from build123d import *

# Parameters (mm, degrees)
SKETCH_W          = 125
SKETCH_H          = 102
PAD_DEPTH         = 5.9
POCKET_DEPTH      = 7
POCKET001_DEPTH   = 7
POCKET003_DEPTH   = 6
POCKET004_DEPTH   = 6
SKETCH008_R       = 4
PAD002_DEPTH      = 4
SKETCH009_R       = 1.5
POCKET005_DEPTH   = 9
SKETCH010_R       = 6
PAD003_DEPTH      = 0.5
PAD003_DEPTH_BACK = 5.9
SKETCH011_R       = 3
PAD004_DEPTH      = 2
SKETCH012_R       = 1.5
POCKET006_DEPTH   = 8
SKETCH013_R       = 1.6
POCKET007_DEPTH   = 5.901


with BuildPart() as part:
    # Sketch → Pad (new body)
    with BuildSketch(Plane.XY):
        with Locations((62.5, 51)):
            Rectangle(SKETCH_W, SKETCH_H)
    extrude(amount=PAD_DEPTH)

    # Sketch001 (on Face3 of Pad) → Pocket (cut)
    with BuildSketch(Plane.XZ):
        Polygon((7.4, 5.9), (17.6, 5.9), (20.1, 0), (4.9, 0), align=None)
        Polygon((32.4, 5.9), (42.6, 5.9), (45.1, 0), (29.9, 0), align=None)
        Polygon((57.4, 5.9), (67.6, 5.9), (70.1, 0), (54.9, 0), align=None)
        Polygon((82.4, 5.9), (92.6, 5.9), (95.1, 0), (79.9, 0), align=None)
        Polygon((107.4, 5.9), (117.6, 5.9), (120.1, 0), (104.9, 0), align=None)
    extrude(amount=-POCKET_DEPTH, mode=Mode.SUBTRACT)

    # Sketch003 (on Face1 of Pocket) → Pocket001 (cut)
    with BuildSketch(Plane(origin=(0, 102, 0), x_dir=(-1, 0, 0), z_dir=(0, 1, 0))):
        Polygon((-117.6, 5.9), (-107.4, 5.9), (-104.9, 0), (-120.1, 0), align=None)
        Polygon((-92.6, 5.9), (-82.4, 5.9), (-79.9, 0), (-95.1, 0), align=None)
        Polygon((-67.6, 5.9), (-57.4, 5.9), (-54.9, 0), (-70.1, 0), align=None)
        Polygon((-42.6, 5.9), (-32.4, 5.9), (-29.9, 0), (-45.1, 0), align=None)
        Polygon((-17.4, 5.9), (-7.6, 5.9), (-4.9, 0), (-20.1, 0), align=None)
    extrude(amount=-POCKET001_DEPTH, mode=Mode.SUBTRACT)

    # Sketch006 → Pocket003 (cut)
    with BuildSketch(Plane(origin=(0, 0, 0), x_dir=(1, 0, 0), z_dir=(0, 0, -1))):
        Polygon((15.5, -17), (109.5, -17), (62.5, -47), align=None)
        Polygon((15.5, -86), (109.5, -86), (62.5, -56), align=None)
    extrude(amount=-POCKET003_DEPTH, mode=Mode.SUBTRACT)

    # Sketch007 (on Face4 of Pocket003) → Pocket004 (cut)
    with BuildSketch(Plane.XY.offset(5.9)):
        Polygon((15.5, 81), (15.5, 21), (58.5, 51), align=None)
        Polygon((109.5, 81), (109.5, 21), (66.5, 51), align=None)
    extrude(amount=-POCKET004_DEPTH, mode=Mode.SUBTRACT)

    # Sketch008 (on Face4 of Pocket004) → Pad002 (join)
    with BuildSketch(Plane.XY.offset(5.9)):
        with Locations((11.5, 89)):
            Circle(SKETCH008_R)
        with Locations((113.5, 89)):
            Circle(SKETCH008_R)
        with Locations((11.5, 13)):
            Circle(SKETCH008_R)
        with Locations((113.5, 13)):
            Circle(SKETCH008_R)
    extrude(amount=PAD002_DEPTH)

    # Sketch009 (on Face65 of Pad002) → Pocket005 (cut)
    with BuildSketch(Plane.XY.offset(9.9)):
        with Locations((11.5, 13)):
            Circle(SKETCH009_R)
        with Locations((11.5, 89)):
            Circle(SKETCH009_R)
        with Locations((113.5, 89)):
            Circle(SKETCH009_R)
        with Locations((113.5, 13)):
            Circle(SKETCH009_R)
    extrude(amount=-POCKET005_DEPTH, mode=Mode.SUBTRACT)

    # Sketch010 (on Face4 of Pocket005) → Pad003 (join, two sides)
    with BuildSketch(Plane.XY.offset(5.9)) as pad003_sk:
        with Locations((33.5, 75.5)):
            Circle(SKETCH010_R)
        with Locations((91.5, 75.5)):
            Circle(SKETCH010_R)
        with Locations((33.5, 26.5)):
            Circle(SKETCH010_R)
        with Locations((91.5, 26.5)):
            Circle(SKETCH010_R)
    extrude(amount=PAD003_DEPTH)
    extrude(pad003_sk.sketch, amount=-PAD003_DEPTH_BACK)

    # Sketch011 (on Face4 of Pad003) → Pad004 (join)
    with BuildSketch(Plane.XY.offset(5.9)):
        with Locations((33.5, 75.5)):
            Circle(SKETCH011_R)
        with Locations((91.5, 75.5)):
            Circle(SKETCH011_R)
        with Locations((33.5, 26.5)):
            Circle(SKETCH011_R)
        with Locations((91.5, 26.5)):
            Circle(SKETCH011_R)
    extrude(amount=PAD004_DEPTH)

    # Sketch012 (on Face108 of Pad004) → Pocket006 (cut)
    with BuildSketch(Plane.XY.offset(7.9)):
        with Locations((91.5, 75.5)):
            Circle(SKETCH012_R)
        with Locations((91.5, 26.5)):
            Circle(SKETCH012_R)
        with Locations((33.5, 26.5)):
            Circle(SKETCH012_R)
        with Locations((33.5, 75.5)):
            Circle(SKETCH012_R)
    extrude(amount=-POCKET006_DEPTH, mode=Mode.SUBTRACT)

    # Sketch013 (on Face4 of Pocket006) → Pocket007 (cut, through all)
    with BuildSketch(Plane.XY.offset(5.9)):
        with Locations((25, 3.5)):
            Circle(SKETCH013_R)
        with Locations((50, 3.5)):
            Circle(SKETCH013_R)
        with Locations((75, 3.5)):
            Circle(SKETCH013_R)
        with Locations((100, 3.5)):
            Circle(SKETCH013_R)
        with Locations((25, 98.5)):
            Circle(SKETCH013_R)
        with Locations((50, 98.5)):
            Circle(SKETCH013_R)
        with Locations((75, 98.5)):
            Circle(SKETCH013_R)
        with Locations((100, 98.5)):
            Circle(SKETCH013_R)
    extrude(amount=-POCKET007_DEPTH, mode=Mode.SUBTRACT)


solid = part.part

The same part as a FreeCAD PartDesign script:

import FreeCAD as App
import Part
import Sketcher

V = App.Vector
Q = App.Units.Quantity


def add_polygon(sketch, points):
    """Adds a closed chain of lines whose ends are joined by coincident constraints."""
    first, n = sketch.GeometryCount, len(points)
    for a, b in zip(points, points[1:] + points[:1]):
        sketch.addGeometry(Part.LineSegment(App.Vector(*a, 0), App.Vector(*b, 0)), False)
    for i in range(n):
        sketch.addConstraint(Sketcher.Constraint("Coincident", first + i, 2, first + (i + 1) % n, 1))

doc = App.newDocument("Part")
body = doc.addObject("PartDesign::Body", "Body")

sketch1 = body.newObject("Sketcher::SketchObject", "Sketch")
sketch1.AttachmentSupport = (doc.getObject("XY_Plane"), [""])
sketch1.MapMode = "FlatFace"
add_polygon(sketch1, [(0, 102), (0, 0), (125, 0), (125, 102)])
sketch1.addConstraint(Sketcher.Constraint("Vertical", 0))
sketch1.addConstraint(Sketcher.Constraint("Horizontal", 1))
sketch1.addConstraint(Sketcher.Constraint("Vertical", 2))
sketch1.addConstraint(Sketcher.Constraint("Horizontal", 3))
sketch1.addConstraint(Sketcher.Constraint("Coincident", 0, 2, -1, 1))
sketch1.addConstraint(Sketcher.Constraint("DistanceX", 1, 1, 1, 2, Q("125 mm")))
sketch1.addConstraint(Sketcher.Constraint("DistanceY", 0, 2, 0, 1, Q("102 mm")))
pad1 = body.newObject("PartDesign::Pad", "Pad")
pad1.Profile = sketch1
pad1.Length = 5.9

sketch2 = body.newObject("Sketcher::SketchObject", "Sketch001")
sketch2.AttachmentSupport = (doc.getObject("XZ_Plane"), [""])
sketch2.MapMode = "FlatFace"
add_polygon(sketch2, [(17.6, 5.9), (7.4, 5.9), (4.9, 0), (20.1, 0)])
add_polygon(sketch2, [(42.6, 5.9), (32.4, 5.9), (29.9, 0), (45.1, 0)])
add_polygon(sketch2, [(67.6, 5.9), (57.4, 5.9), (54.9, 0), (70.1, 0)])
add_polygon(sketch2, [(92.6, 5.9), (82.4, 5.9), (79.9, 0), (95.1, 0)])
add_polygon(sketch2, [(117.6, 5.9), (107.4, 5.9), (104.9, 0), (120.1, 0)])
sketch2.addConstraint(Sketcher.Constraint("Horizontal", 0))
sketch2.addConstraint(Sketcher.Constraint("Horizontal", 2))
sketch2.addConstraint(Sketcher.Constraint("Horizontal", 4))
sketch2.addConstraint(Sketcher.Constraint("Horizontal", 6))
sketch2.addConstraint(Sketcher.Constraint("Horizontal", 8))
sketch2.addConstraint(Sketcher.Constraint("Horizontal", 10))
sketch2.addConstraint(Sketcher.Constraint("Horizontal", 12))
sketch2.addConstraint(Sketcher.Constraint("Horizontal", 14))
sketch2.addConstraint(Sketcher.Constraint("Horizontal", 16))
sketch2.addConstraint(Sketcher.Constraint("Horizontal", 18))
sketch2.addConstraint(Sketcher.Constraint("PointOnObject", 1, 2, -1))
sketch2.addConstraint(Sketcher.Constraint("PointOnObject", 5, 2, -1))
sketch2.addConstraint(Sketcher.Constraint("PointOnObject", 9, 2, -1))
sketch2.addConstraint(Sketcher.Constraint("PointOnObject", 13, 2, -1))
sketch2.addConstraint(Sketcher.Constraint("PointOnObject", 17, 2, -1))
sketch2.addConstraint(Sketcher.Constraint("Parallel", 1, 5))
sketch2.addConstraint(Sketcher.Constraint("Parallel", 3, 7))
sketch2.addConstraint(Sketcher.Constraint("Parallel", 5, 9))
sketch2.addConstraint(Sketcher.Constraint("Parallel", 7, 11))
sketch2.addConstraint(Sketcher.Constraint("Parallel", 9, 13))
sketch2.addConstraint(Sketcher.Constraint("Parallel", 11, 15))
sketch2.addConstraint(Sketcher.Constraint("Parallel", 13, 17))
sketch2.addConstraint(Sketcher.Constraint("Parallel", 15, 19))
sketch2.addConstraint(Sketcher.Constraint("Horizontal", 3, 2, 4, 2))
sketch2.addConstraint(Sketcher.Constraint("Horizontal", 7, 2, 8, 2))
sketch2.addConstraint(Sketcher.Constraint("Horizontal", 11, 2, 12, 2))
sketch2.addConstraint(Sketcher.Constraint("Horizontal", 15, 2, 16, 2))
sketch2.addConstraint(Sketcher.Constraint("Equal", 0, 4))
sketch2.addConstraint(Sketcher.Constraint("Equal", 4, 8))
sketch2.addConstraint(Sketcher.Constraint("Equal", 8, 12))
sketch2.addConstraint(Sketcher.Constraint("Equal", 12, 16))
sketch2.addConstraint(Sketcher.Constraint("Equal", 1, 3))
sketch2.addConstraint(Sketcher.Constraint("DistanceX", 0, 2, 0, 1, Q("10.2 mm")))
sketch2.addConstraint(Sketcher.Constraint("DistanceX", 2, 1, 2, 2, Q("15.2 mm")))
sketch2.addConstraint(Sketcher.Constraint("DistanceX", 0, 2, 4, 2, Q("25 mm")))
sketch2.addConstraint(Sketcher.Constraint("DistanceX", 4, 2, 8, 2, Q("25 mm")))
sketch2.addConstraint(Sketcher.Constraint("DistanceX", 8, 2, 12, 2, Q("25 mm")))
sketch2.addConstraint(Sketcher.Constraint("DistanceX", 12, 2, 16, 2, Q("25 mm")))
sketch2.addConstraint(Sketcher.Constraint("DistanceX", -1, 1, 0, 2, Q("7.4 mm")))
sketch2.addConstraint(Sketcher.Constraint("DistanceY", -1, 1, 0, 2, Q("5.9 mm")))
pocket1 = body.newObject("PartDesign::Pocket", "Pocket")
pocket1.Profile = sketch2
pocket1.Length = 7

sketch3 = body.newObject("Sketcher::SketchObject", "Sketch002")
sketch3.AttachmentSupport = (doc.getObject("XZ_Plane"), [""])
sketch3.MapMode = "FlatFace"
sketch3.AttachmentOffset = App.Placement(V(0, 0, -102), App.Rotation())
add_polygon(sketch3, [(107.4, 5.9), (117.6, 5.9), (120.1, 0), (104.9, 0)])
add_polygon(sketch3, [(82.4, 5.9), (92.6, 5.9), (95.1, 0), (79.9, 0)])
add_polygon(sketch3, [(57.4, 5.9), (67.6, 5.9), (70.1, 0), (54.9, 0)])
add_polygon(sketch3, [(32.4, 5.9), (42.6, 5.9), (45.1, 0), (29.9, 0)])
add_polygon(sketch3, [(7.6, 5.9), (17.4, 5.9), (20.1, 0), (4.9, 0)])
sketch3.addConstraint(Sketcher.Constraint("Horizontal", 0))
sketch3.addConstraint(Sketcher.Constraint("Horizontal", 2))
sketch3.addConstraint(Sketcher.Constraint("Horizontal", 4))
sketch3.addConstraint(Sketcher.Constraint("Horizontal", 6))
sketch3.addConstraint(Sketcher.Constraint("Horizontal", 8))
sketch3.addConstraint(Sketcher.Constraint("Horizontal", 10))
sketch3.addConstraint(Sketcher.Constraint("Horizontal", 12))
sketch3.addConstraint(Sketcher.Constraint("Horizontal", 14))
sketch3.addConstraint(Sketcher.Constraint("Horizontal", 16))
sketch3.addConstraint(Sketcher.Constraint("Horizontal", 18))
sketch3.addConstraint(Sketcher.Constraint("PointOnObject", 1, 2, -1))
sketch3.addConstraint(Sketcher.Constraint("PointOnObject", 5, 2, -1))
sketch3.addConstraint(Sketcher.Constraint("PointOnObject", 9, 2, -1))
sketch3.addConstraint(Sketcher.Constraint("PointOnObject", 13, 2, -1))
sketch3.addConstraint(Sketcher.Constraint("PointOnObject", 17, 2, -1))
sketch3.addConstraint(Sketcher.Constraint("Parallel", 1, 5))
sketch3.addConstraint(Sketcher.Constraint("Parallel", 3, 7))
sketch3.addConstraint(Sketcher.Constraint("Parallel", 5, 9))
sketch3.addConstraint(Sketcher.Constraint("Parallel", 7, 11))
sketch3.addConstraint(Sketcher.Constraint("Parallel", 9, 13))
sketch3.addConstraint(Sketcher.Constraint("Parallel", 11, 15))
sketch3.addConstraint(Sketcher.Constraint("Horizontal", 3, 2, 4, 2))
sketch3.addConstraint(Sketcher.Constraint("Horizontal", 7, 2, 8, 2))
sketch3.addConstraint(Sketcher.Constraint("Horizontal", 11, 2, 12, 2))
sketch3.addConstraint(Sketcher.Constraint("Horizontal", 15, 2, 16, 2))
sketch3.addConstraint(Sketcher.Constraint("Equal", 0, 4))
sketch3.addConstraint(Sketcher.Constraint("Equal", 4, 8))
sketch3.addConstraint(Sketcher.Constraint("Equal", 8, 12))
sketch3.addConstraint(Sketcher.Constraint("Equal", 14, 18))
sketch3.addConstraint(Sketcher.Constraint("Equal", 1, 3))
sketch3.addConstraint(Sketcher.Constraint("Equal", 17, 19))
sketch3.addConstraint(Sketcher.Constraint("DistanceX", 0, 1, 0, 2, Q("10.2 mm")))
sketch3.addConstraint(Sketcher.Constraint("DistanceX", 2, 2, 2, 1, Q("15.2 mm")))
sketch3.addConstraint(Sketcher.Constraint("DistanceX", 16, 1, 16, 2, Q("9.8 mm")))
sketch3.addConstraint(Sketcher.Constraint("DistanceX", 4, 2, 0, 2, Q("25 mm")))
sketch3.addConstraint(Sketcher.Constraint("DistanceX", 8, 2, 4, 2, Q("25 mm")))
sketch3.addConstraint(Sketcher.Constraint("DistanceX", 12, 2, 8, 2, Q("25 mm")))
sketch3.addConstraint(Sketcher.Constraint("DistanceX", 16, 2, 15, 2, Q("15 mm")))
sketch3.addConstraint(Sketcher.Constraint("DistanceX", -1, 1, 0, 2, Q("117.6 mm")))
sketch3.addConstraint(Sketcher.Constraint("DistanceY", -1, 1, 0, 2, Q("5.9 mm")))
pocket2 = body.newObject("PartDesign::Pocket", "Pocket001")
pocket2.Profile = sketch3
pocket2.Length = 7
pocket2.Reversed = True

sketch4 = body.newObject("Sketcher::SketchObject", "Sketch003")
sketch4.AttachmentSupport = (doc.getObject("XY_Plane"), [""])
sketch4.MapMode = "FlatFace"
add_polygon(sketch4, [(109.5, 17), (15.5, 17), (62.5, 47)])
add_polygon(sketch4, [(15.5, 86), (109.5, 86), (62.5, 56)])
sketch4.addConstraint(Sketcher.Constraint("Horizontal", 0))
sketch4.addConstraint(Sketcher.Constraint("Horizontal", 3))
sketch4.addConstraint(Sketcher.Constraint("Parallel", 1, 4))
sketch4.addConstraint(Sketcher.Constraint("Parallel", 2, 5))
sketch4.addConstraint(Sketcher.Constraint("Vertical", 2, 2, 3, 2))
sketch4.addConstraint(Sketcher.Constraint("Vertical", 1, 2, 4, 2))
sketch4.addConstraint(Sketcher.Constraint("Vertical", 0, 2, 5, 2))
sketch4.addConstraint(Sketcher.Constraint("DistanceX", 0, 2, 0, 1, Q("94 mm")))
sketch4.addConstraint(Sketcher.Constraint("DistanceY", -1, 1, 0, 2, Q("17 mm")))
sketch4.addConstraint(Sketcher.Constraint("DistanceY", -1, 1, 1, 2, Q("47 mm")))
sketch4.addConstraint(Sketcher.Constraint("DistanceY", -1, 1, 3, 2, Q("86 mm")))
sketch4.addConstraint(Sketcher.Constraint("DistanceX", -1, 1, 0, 2, Q("15.5 mm")))
pocket3 = body.newObject("PartDesign::Pocket", "Pocket002")
pocket3.Profile = sketch4
pocket3.Length = 6
pocket3.Reversed = True

sketch5 = body.newObject("Sketcher::SketchObject", "Sketch004")
sketch5.AttachmentSupport = (doc.getObject("XY_Plane"), [""])
sketch5.MapMode = "FlatFace"
sketch5.AttachmentOffset = App.Placement(V(0, 0, 5.9), App.Rotation())
add_polygon(sketch5, [(15.5, 81), (15.5, 21), (58.5, 51)])
add_polygon(sketch5, [(109.5, 21), (109.5, 81), (66.5, 51)])
sketch5.addConstraint(Sketcher.Constraint("Vertical", 0))
sketch5.addConstraint(Sketcher.Constraint("Vertical", 3))
sketch5.addConstraint(Sketcher.Constraint("Parallel", 1, 4))
sketch5.addConstraint(Sketcher.Constraint("Parallel", 2, 5))
sketch5.addConstraint(Sketcher.Constraint("Horizontal", 2, 2, 3, 2))
sketch5.addConstraint(Sketcher.Constraint("Horizontal", 1, 2, 4, 2))
sketch5.addConstraint(Sketcher.Constraint("Horizontal", 0, 2, 5, 2))
sketch5.addConstraint(Sketcher.Constraint("DistanceY", 0, 2, 0, 1, Q("60 mm")))
sketch5.addConstraint(Sketcher.Constraint("DistanceY", -1, 1, 0, 2, Q("21 mm")))
sketch5.addConstraint(Sketcher.Constraint("DistanceX", 0, 2, 1, 2, Q("43 mm")))
sketch5.addConstraint(Sketcher.Constraint("DistanceX", 1, 2, 3, 2, Q("51 mm")))
sketch5.addConstraint(Sketcher.Constraint("DistanceX", -1, 1, 0, 2, Q("15.5 mm")))
pocket4 = body.newObject("PartDesign::Pocket", "Pocket003")
pocket4.Profile = sketch5
pocket4.Length = 6

sketch6 = body.newObject("Sketcher::SketchObject", "Sketch005")
sketch6.AttachmentSupport = (doc.getObject("XY_Plane"), [""])
sketch6.MapMode = "FlatFace"
sketch6.AttachmentOffset = App.Placement(V(0, 0, 5.9), App.Rotation())
sketch6.addGeometry(Part.Circle(V(11.5, 89, 0), V(0, 0, 1), 4), False)
sketch6.addGeometry(Part.Circle(V(113.5, 89, 0), V(0, 0, 1), 4), False)
sketch6.addGeometry(Part.Circle(V(11.5, 13, 0), V(0, 0, 1), 4), False)
sketch6.addGeometry(Part.Circle(V(113.5, 13, 0), V(0, 0, 1), 4), False)
sketch6.addConstraint(Sketcher.Constraint("Equal", 0, 1))
sketch6.addConstraint(Sketcher.Constraint("Equal", 1, 2))
sketch6.addConstraint(Sketcher.Constraint("Equal", 2, 3))
sketch6.addConstraint(Sketcher.Constraint("Horizontal", 0, 3, 1, 3))
sketch6.addConstraint(Sketcher.Constraint("Horizontal", 2, 3, 3, 3))
sketch6.addConstraint(Sketcher.Constraint("Vertical", 0, 3, 2, 3))
sketch6.addConstraint(Sketcher.Constraint("Vertical", 1, 3, 3, 3))
sketch6.addConstraint(Sketcher.Constraint("Diameter", 0, Q("8 mm")))
sketch6.addConstraint(Sketcher.Constraint("DistanceY", -1, 1, 0, 3, Q("89 mm")))
sketch6.addConstraint(Sketcher.Constraint("DistanceY", -1, 1, 2, 3, Q("13 mm")))
sketch6.addConstraint(Sketcher.Constraint("DistanceX", 0, 3, 1, 3, Q("102 mm")))
sketch6.addConstraint(Sketcher.Constraint("DistanceX", -1, 1, 0, 3, Q("11.5 mm")))
pad2 = body.newObject("PartDesign::Pad", "Pad001")
pad2.Profile = sketch6
pad2.Length = 4

sketch7 = body.newObject("Sketcher::SketchObject", "Sketch006")
sketch7.AttachmentSupport = (doc.getObject("XY_Plane"), [""])
sketch7.MapMode = "FlatFace"
sketch7.AttachmentOffset = App.Placement(V(0, 0, 9.9), App.Rotation())
sketch7.addGeometry(Part.Circle(V(11.5, 13, 0), V(0, 0, 1), 1.5), False)
sketch7.addGeometry(Part.Circle(V(11.5, 89, 0), V(0, 0, 1), 1.5), False)
sketch7.addGeometry(Part.Circle(V(113.5, 89, 0), V(0, 0, 1), 1.5), False)
sketch7.addGeometry(Part.Circle(V(113.5, 13, 0), V(0, 0, 1), 1.5), False)
sketch7.addConstraint(Sketcher.Constraint("Equal", 0, 1))
sketch7.addConstraint(Sketcher.Constraint("Equal", 1, 2))
sketch7.addConstraint(Sketcher.Constraint("Equal", 2, 3))
sketch7.addConstraint(Sketcher.Constraint("Horizontal", 1, 3, 2, 3))
sketch7.addConstraint(Sketcher.Constraint("Horizontal", 0, 3, 3, 3))
sketch7.addConstraint(Sketcher.Constraint("Vertical", 0, 3, 1, 3))
sketch7.addConstraint(Sketcher.Constraint("Vertical", 2, 3, 3, 3))
sketch7.addConstraint(Sketcher.Constraint("Diameter", 0, Q("3 mm")))
sketch7.addConstraint(Sketcher.Constraint("DistanceY", -1, 1, 0, 3, Q("13 mm")))
sketch7.addConstraint(Sketcher.Constraint("DistanceY", -1, 1, 1, 3, Q("89 mm")))
sketch7.addConstraint(Sketcher.Constraint("DistanceX", 1, 3, 2, 3, Q("102 mm")))
sketch7.addConstraint(Sketcher.Constraint("DistanceX", -1, 1, 0, 3, Q("11.5 mm")))
pocket5 = body.newObject("PartDesign::Pocket", "Pocket004")
pocket5.Profile = sketch7
pocket5.Length = 9

sketch8 = body.newObject("Sketcher::SketchObject", "Sketch007")
sketch8.AttachmentSupport = (doc.getObject("XY_Plane"), [""])
sketch8.MapMode = "FlatFace"
sketch8.AttachmentOffset = App.Placement(V(0, 0, 5.9), App.Rotation())
sketch8.addGeometry(Part.Circle(V(33.5, 75.5, 0), V(0, 0, 1), 6), False)
sketch8.addGeometry(Part.Circle(V(91.5, 75.5, 0), V(0, 0, 1), 6), False)
sketch8.addGeometry(Part.Circle(V(33.5, 26.5, 0), V(0, 0, 1), 6), False)
sketch8.addGeometry(Part.Circle(V(91.5, 26.5, 0), V(0, 0, 1), 6), False)
sketch8.addConstraint(Sketcher.Constraint("Equal", 0, 1))
sketch8.addConstraint(Sketcher.Constraint("Equal", 1, 2))
sketch8.addConstraint(Sketcher.Constraint("Equal", 2, 3))
sketch8.addConstraint(Sketcher.Constraint("Horizontal", 0, 3, 1, 3))
sketch8.addConstraint(Sketcher.Constraint("Horizontal", 2, 3, 3, 3))
sketch8.addConstraint(Sketcher.Constraint("Vertical", 0, 3, 2, 3))
sketch8.addConstraint(Sketcher.Constraint("Vertical", 1, 3, 3, 3))
sketch8.addConstraint(Sketcher.Constraint("Diameter", 0, Q("12 mm")))
sketch8.addConstraint(Sketcher.Constraint("DistanceX", 0, 3, 1, 3, Q("58 mm")))
sketch8.addConstraint(Sketcher.Constraint("DistanceY", 2, 3, 0, 3, Q("49 mm")))
sketch8.addConstraint(Sketcher.Constraint("DistanceX", -1, 1, 0, 3, Q("33.5 mm")))
sketch8.addConstraint(Sketcher.Constraint("DistanceY", -1, 1, 0, 3, Q("75.5 mm")))
pad3 = body.newObject("PartDesign::Pad", "Pad002")
pad3.Profile = sketch8
pad3.Type = "TwoLengths"
pad3.Length = 0.5
pad3.Length2 = 5.9

sketch9 = body.newObject("Sketcher::SketchObject", "Sketch008")
sketch9.AttachmentSupport = (doc.getObject("XY_Plane"), [""])
sketch9.MapMode = "FlatFace"
sketch9.AttachmentOffset = App.Placement(V(0, 0, 5.9), App.Rotation())
sketch9.addGeometry(Part.Circle(V(33.5, 75.5, 0), V(0, 0, 1), 3), False)
sketch9.addGeometry(Part.Circle(V(91.5, 75.5, 0), V(0, 0, 1), 3), False)
sketch9.addGeometry(Part.Circle(V(33.5, 26.5, 0), V(0, 0, 1), 3), False)
sketch9.addGeometry(Part.Circle(V(91.5, 26.5, 0), V(0, 0, 1), 3), False)
sketch9.addConstraint(Sketcher.Constraint("Equal", 0, 1))
sketch9.addConstraint(Sketcher.Constraint("Equal", 1, 2))
sketch9.addConstraint(Sketcher.Constraint("Equal", 2, 3))
sketch9.addConstraint(Sketcher.Constraint("Horizontal", 0, 3, 1, 3))
sketch9.addConstraint(Sketcher.Constraint("Horizontal", 2, 3, 3, 3))
sketch9.addConstraint(Sketcher.Constraint("Vertical", 0, 3, 2, 3))
sketch9.addConstraint(Sketcher.Constraint("Vertical", 1, 3, 3, 3))
sketch9.addConstraint(Sketcher.Constraint("Diameter", 0, Q("6 mm")))
sketch9.addConstraint(Sketcher.Constraint("DistanceX", 0, 3, 1, 3, Q("58 mm")))
sketch9.addConstraint(Sketcher.Constraint("DistanceY", 2, 3, 0, 3, Q("49 mm")))
sketch9.addConstraint(Sketcher.Constraint("DistanceX", -1, 1, 0, 3, Q("33.5 mm")))
sketch9.addConstraint(Sketcher.Constraint("DistanceY", -1, 1, 0, 3, Q("75.5 mm")))
pad4 = body.newObject("PartDesign::Pad", "Pad003")
pad4.Profile = sketch9
pad4.Length = 2

sketch10 = body.newObject("Sketcher::SketchObject", "Sketch009")
sketch10.AttachmentSupport = (doc.getObject("XY_Plane"), [""])
sketch10.MapMode = "FlatFace"
sketch10.AttachmentOffset = App.Placement(V(0, 0, 7.9), App.Rotation())
sketch10.addGeometry(Part.Circle(V(91.5, 75.5, 0), V(0, 0, 1), 1.5), False)
sketch10.addGeometry(Part.Circle(V(91.5, 26.5, 0), V(0, 0, 1), 1.5), False)
sketch10.addGeometry(Part.Circle(V(33.5, 26.5, 0), V(0, 0, 1), 1.5), False)
sketch10.addGeometry(Part.Circle(V(33.5, 75.5, 0), V(0, 0, 1), 1.5), False)
sketch10.addConstraint(Sketcher.Constraint("Equal", 0, 1))
sketch10.addConstraint(Sketcher.Constraint("Equal", 1, 2))
sketch10.addConstraint(Sketcher.Constraint("Equal", 2, 3))
sketch10.addConstraint(Sketcher.Constraint("Horizontal", 1, 3, 2, 3))
sketch10.addConstraint(Sketcher.Constraint("Horizontal", 0, 3, 3, 3))
sketch10.addConstraint(Sketcher.Constraint("Vertical", 0, 3, 1, 3))
sketch10.addConstraint(Sketcher.Constraint("Vertical", 2, 3, 3, 3))
sketch10.addConstraint(Sketcher.Constraint("Diameter", 0, Q("3 mm")))
sketch10.addConstraint(Sketcher.Constraint("DistanceY", 1, 3, 0, 3, Q("49 mm")))
sketch10.addConstraint(Sketcher.Constraint("DistanceX", 2, 3, 1, 3, Q("58 mm")))
sketch10.addConstraint(Sketcher.Constraint("DistanceX", -1, 1, 0, 3, Q("91.5 mm")))
sketch10.addConstraint(Sketcher.Constraint("DistanceY", -1, 1, 0, 3, Q("75.5 mm")))
pocket6 = body.newObject("PartDesign::Pocket", "Pocket005")
pocket6.Profile = sketch10
pocket6.Length = 8

sketch11 = body.newObject("Sketcher::SketchObject", "Sketch010")
sketch11.AttachmentSupport = (doc.getObject("XY_Plane"), [""])
sketch11.MapMode = "FlatFace"
sketch11.AttachmentOffset = App.Placement(V(0, 0, 5.9), App.Rotation())
sketch11.addGeometry(Part.Circle(V(25, 3.5, 0), V(0, 0, 1), 1.6), False)
sketch11.addGeometry(Part.Circle(V(50, 3.5, 0), V(0, 0, 1), 1.6), False)
sketch11.addGeometry(Part.Circle(V(75, 3.5, 0), V(0, 0, 1), 1.6), False)
sketch11.addGeometry(Part.Circle(V(100, 3.5, 0), V(0, 0, 1), 1.6), False)
sketch11.addGeometry(Part.Circle(V(25, 98.5, 0), V(0, 0, 1), 1.6), False)
sketch11.addGeometry(Part.Circle(V(50, 98.5, 0), V(0, 0, 1), 1.6), False)
sketch11.addGeometry(Part.Circle(V(75, 98.5, 0), V(0, 0, 1), 1.6), False)
sketch11.addGeometry(Part.Circle(V(100, 98.5, 0), V(0, 0, 1), 1.6), False)
sketch11.addConstraint(Sketcher.Constraint("Equal", 0, 1))
sketch11.addConstraint(Sketcher.Constraint("Equal", 1, 2))
sketch11.addConstraint(Sketcher.Constraint("Equal", 2, 3))
sketch11.addConstraint(Sketcher.Constraint("Equal", 3, 4))
sketch11.addConstraint(Sketcher.Constraint("Equal", 4, 5))
sketch11.addConstraint(Sketcher.Constraint("Equal", 5, 6))
sketch11.addConstraint(Sketcher.Constraint("Equal", 6, 7))
sketch11.addConstraint(Sketcher.Constraint("Horizontal", 0, 3, 1, 3))
sketch11.addConstraint(Sketcher.Constraint("Horizontal", 1, 3, 2, 3))
sketch11.addConstraint(Sketcher.Constraint("Horizontal", 2, 3, 3, 3))
sketch11.addConstraint(Sketcher.Constraint("Horizontal", 4, 3, 5, 3))
sketch11.addConstraint(Sketcher.Constraint("Horizontal", 5, 3, 6, 3))
sketch11.addConstraint(Sketcher.Constraint("Horizontal", 6, 3, 7, 3))
sketch11.addConstraint(Sketcher.Constraint("Vertical", 0, 3, 4, 3))
sketch11.addConstraint(Sketcher.Constraint("Vertical", 1, 3, 5, 3))
sketch11.addConstraint(Sketcher.Constraint("Vertical", 2, 3, 6, 3))
sketch11.addConstraint(Sketcher.Constraint("Vertical", 3, 3, 7, 3))
sketch11.addConstraint(Sketcher.Constraint("Diameter", 0, Q("3.2 mm")))
sketch11.addConstraint(Sketcher.Constraint("DistanceX", -1, 1, 0, 3, Q("25 mm")))
sketch11.addConstraint(Sketcher.Constraint("DistanceX", -1, 1, 1, 3, Q("50 mm")))
sketch11.addConstraint(Sketcher.Constraint("DistanceX", -1, 1, 2, 3, Q("75 mm")))
sketch11.addConstraint(Sketcher.Constraint("DistanceX", -1, 1, 3, 3, Q("100 mm")))
sketch11.addConstraint(Sketcher.Constraint("DistanceY", 0, 3, 4, 3, Q("95 mm")))
sketch11.addConstraint(Sketcher.Constraint("DistanceY", -1, 1, 0, 3, Q("3.5 mm")))
pocket7 = body.newObject("PartDesign::Pocket", "Pocket006")
pocket7.Profile = sketch11
pocket7.Type = "ThroughAll"

doc.recompute()
